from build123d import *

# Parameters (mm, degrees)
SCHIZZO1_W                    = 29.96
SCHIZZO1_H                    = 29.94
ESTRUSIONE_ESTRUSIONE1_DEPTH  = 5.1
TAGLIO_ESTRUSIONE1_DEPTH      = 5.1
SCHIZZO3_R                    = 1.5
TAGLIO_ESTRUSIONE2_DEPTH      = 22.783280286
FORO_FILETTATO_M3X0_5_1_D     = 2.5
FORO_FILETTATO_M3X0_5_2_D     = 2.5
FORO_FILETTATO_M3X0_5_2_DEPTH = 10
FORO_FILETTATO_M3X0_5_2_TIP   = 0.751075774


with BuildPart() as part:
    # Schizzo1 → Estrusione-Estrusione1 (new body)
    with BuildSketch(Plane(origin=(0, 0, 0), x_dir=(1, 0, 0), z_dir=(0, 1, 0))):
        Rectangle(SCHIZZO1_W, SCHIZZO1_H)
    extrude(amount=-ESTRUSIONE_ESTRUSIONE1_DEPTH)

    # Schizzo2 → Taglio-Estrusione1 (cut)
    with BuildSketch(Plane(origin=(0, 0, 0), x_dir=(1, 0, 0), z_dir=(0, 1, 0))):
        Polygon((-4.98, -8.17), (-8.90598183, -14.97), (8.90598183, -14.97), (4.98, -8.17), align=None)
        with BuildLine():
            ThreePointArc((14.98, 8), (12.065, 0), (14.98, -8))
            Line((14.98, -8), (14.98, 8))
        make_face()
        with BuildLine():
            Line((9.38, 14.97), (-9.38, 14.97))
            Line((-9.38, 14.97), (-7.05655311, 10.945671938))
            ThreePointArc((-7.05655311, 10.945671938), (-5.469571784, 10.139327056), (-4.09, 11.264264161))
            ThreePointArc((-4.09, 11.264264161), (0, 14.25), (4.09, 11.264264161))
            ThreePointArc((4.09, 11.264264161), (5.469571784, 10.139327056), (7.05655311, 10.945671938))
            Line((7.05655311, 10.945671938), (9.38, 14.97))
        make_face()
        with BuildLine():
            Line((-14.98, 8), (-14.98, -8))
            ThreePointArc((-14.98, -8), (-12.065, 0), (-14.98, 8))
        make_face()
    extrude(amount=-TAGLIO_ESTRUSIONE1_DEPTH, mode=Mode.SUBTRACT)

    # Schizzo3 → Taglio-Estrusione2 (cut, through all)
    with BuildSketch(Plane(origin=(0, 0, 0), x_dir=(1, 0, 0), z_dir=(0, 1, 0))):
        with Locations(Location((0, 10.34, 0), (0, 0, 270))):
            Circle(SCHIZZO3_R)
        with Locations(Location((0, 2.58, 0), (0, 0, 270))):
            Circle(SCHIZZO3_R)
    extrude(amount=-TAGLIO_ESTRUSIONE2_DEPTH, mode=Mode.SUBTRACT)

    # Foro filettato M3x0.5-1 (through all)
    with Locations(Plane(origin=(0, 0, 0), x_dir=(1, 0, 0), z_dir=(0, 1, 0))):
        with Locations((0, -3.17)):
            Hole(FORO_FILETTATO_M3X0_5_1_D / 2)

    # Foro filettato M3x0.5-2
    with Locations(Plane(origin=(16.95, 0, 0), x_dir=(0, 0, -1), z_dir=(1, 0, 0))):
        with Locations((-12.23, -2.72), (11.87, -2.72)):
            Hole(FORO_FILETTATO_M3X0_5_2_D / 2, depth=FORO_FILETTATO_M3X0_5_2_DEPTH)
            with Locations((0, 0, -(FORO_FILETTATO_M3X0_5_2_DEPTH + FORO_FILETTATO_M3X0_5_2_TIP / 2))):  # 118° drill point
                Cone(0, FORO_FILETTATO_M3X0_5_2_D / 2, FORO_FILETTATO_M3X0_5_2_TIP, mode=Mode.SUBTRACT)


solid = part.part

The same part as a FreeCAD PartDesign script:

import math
import FreeCAD as App
import Part
import Sketcher

V = App.Vector
Q = App.Units.Quantity


def add_polygon(sketch, points):
    """Adds a closed chain of lines whose ends are joined by coincident constraints."""
    first, n = sketch.GeometryCount, len(points)
    for a, b in zip(points, points[1:] + points[:1]):
        sketch.addGeometry(Part.LineSegment(App.Vector(*a, 0), App.Vector(*b, 0)), False)
    for i in range(n):
        sketch.addConstraint(Sketcher.Constraint("Coincident", first + i, 2, first + (i + 1) % n, 1))

doc = App.newDocument("Part")
body = doc.addObject("PartDesign::Body", "Body")

sketch1 = doc.addObject("Sketcher::SketchObject", "Sketch")
body.addObject(sketch1)
sketch1.AttachmentSupport = (doc.XZ_Plane, [""])
sketch1.MapMode = "FlatFace"
add_polygon(sketch1, [(-15, -15), (-15, 15), (15, 15), (15, -15)])
sketch1.addConstraint(Sketcher.Constraint("Vertical", 0))
sketch1.addConstraint(Sketcher.Constraint("Horizontal", 1))
sketch1.addConstraint(Sketcher.Constraint("Vertical", 2))
sketch1.addConstraint(Sketcher.Constraint("Horizontal", 3))
sketch1.addConstraint(Sketcher.Constraint("Symmetric", 0, 2, 2, 2, -1, 1))
sketch1.addConstraint(Sketcher.Constraint("DistanceX", 1, 1, 1, 2, 29.96))
sketch1.addConstraint(Sketcher.Constraint("DistanceY", 0, 1, 0, 2, 29.94))
pad1 = doc.addObject("PartDesign::Pad", "Pad")
body.addObject(pad1)
pad1.Profile = sketch1
pad1.Length = 5.1

sketch2 = doc.addObject("Sketcher::SketchObject", "Sketch001")
body.addObject(sketch2)
sketch2.AttachmentSupport = (doc.XZ_Plane, [""])
sketch2.MapMode = "FlatFace"
add_polygon(sketch2, [(-5, 8.2), (-8.9, 15), (8.9, 15), (5, 8.2)])
sketch2.addGeometry(Part.ArcOfCircle(Part.Circle(V(24.5, 0, 0), V(0, 0, 1), 12.4), math.radians(140), math.radians(220)), False)
sketch2.addGeometry(Part.LineSegment(V(15, 8, 0), V(15, -8, 0)), False)
sketch2.addGeometry(Part.LineSegment(V(9.4, -15, 0), V(-9.4, -15, 0)), False)
sketch2.addGeometry(Part.LineSegment(V(-9.4, -15, 0), V(-7.1, -10.9, 0)), False)
sketch2.addGeometry(Part.ArcOfCircle(Part.Circle(V(-5.6, -11.8, 0), V(0, 0, 1), 1.6), math.radians(18), math.radians(150)), False)
sketch2.addGeometry(Part.ArcOfCircle(Part.Circle(V(0, -10, 0), V(0, 0, 1), 4.3), math.radians(-162), math.radians(-18)), False)
sketch2.addGeometry(Part.ArcOfCircle(Part.Circle(V(5.6, -11.8, 0), V(0, 0, 1), 1.6), math.radians(30), math.radians(162)), False)
sketch2.addGeometry(Part.LineSegment(V(7.1, -10.9, 0), V(9.4, -15, 0)), False)
sketch2.addGeometry(Part.LineSegment(V(-15, -8, 0), V(-15, 8, 0)), False)
sketch2.addGeometry(Part.ArcOfCircle(Part.Circle(V(-24.5, 0, 0), V(0, 0, 1), 12.4), math.radians(-40), math.radians(40)), False)
sketch2.addConstraint(Sketcher.Constraint("Coincident", 4, 1, 5, 1))
sketch2.addConstraint(Sketcher.Constraint("Coincident", 5, 2, 4, 2))
sketch2.addConstraint(Sketcher.Constraint("Coincident", 6, 2, 7, 1))
sketch2.addConstraint(Sketcher.Constraint("Tangent", 7, 2, 8, 2))
sketch2.addConstraint(Sketcher.Constraint("Tangent", 8, 1, 9, 1))
sketch2.addConstraint(Sketcher.Constraint("Tangent", 9, 2, 10, 2))
sketch2.addConstraint(Sketcher.Constraint("Tangent", 10, 1, 11, 1))
sketch2.addConstraint(Sketcher.Constraint("Coincident", 11, 2, 6, 1))
sketch2.addConstraint(Sketcher.Constraint("Coincident", 12, 1, 13, 1))
sketch2.addConstraint(Sketcher.Constraint("Coincident", 13, 2, 12, 2))
sketch2.addConstraint(Sketcher.Constraint("Horizontal", 1))
sketch2.addConstraint(Sketcher.Constraint("Horizontal", 3))
sketch2.addConstraint(Sketcher.Constraint("Vertical", 5))
sketch2.addConstraint(Sketcher.Constraint("Horizontal", 6))
sketch2.addConstraint(Sketcher.Constraint("Vertical", 12))
sketch2.addConstraint(Sketcher.Constraint("Equal", 8, 10))
sketch2.addConstraint(Sketcher.Constraint("Equal", 4, 13))
sketch2.addConstraint(Sketcher.Constraint("Symmetric", 4, 3, 13, 3, -1, 1))
sketch2.addConstraint(Sketcher.Constraint("Symmetric", 8, 3, 10, 3, -2))
sketch2.addConstraint(Sketcher.Constraint("Symmetric", 5, 2, 12, 1, -2))
sketch2.addConstraint(Sketcher.Constraint("Parallel", 2, 7))
sketch2.addConstraint(Sketcher.Constraint("Parallel", 0, 11))
sketch2.addConstraint(Sketcher.Constraint("Horizontal", 7, 2, 10, 1))
sketch2.addConstraint(Sketcher.Constraint("DistanceY", 5, 2, 5, 1, 16.0))
sketch2.addConstraint(Sketcher.Constraint("Angle", 0, Q("120 deg")))
sketch2.addConstraint(Sketcher.Constraint("DistanceX", 2, 2, 4, 1, 10.0))
sketch2.addConstraint(Sketcher.Constraint("DistanceX", 13, 2, 3, 2, 10.0))
sketch2.addConstraint(Sketcher.Constraint("DistanceX", 3, 2, 3, 1, 9.96))
sketch2.addConstraint(Sketcher.Constraint("DistanceX", 6, 2, 6, 1, 18.76))
sketch2.addConstraint(Sketcher.Constraint("Radius", 4, 12.435202))
sketch2.addConstraint(Sketcher.Constraint("DistanceY", 2, 2, 1, 2, 6.8))
sketch2.addConstraint(Sketcher.Constraint("DistanceY", -1, 1, 0, 2, 14.97))
sketch2.addConstraint(Sketcher.Constraint("DistanceY", 6, 2, -1, 1, 14.97))
sketch2.addConstraint(Sketcher.Constraint("DistanceX", 8, 1, -1, 1, 4.09))
sketch2.addConstraint(Sketcher.Constraint("Radius", 8, 1.631344))
sketch2.addConstraint(Sketcher.Constraint("Radius", 9, 4.294204))
pocket1 = doc.addObject("PartDesign::Pocket", "Pocket")
body.addObject(pocket1)
pocket1.Profile = sketch2
pocket1.Length = 5.1
pocket1.Reversed = True

sketch3 = doc.addObject("Sketcher::SketchObject", "Sketch002")
body.addObject(sketch3)
sketch3.AttachmentSupport = (doc.XZ_Plane, [""])
sketch3.MapMode = "FlatFace"
sketch3.addGeometry(Part.Circle(V(0, -10.3, 0), V(0, 0, 1), 1.5), False)
sketch3.addGeometry(Part.Circle(V(0, -2.6, 0), V(0, 0, 1), 1.5), False)
sketch3.addConstraint(Sketcher.Constraint("Equal", 0, 1))
sketch3.addConstraint(Sketcher.Constraint("PointOnObject", 0, 3, -2))
sketch3.addConstraint(Sketcher.Constraint("PointOnObject", 1, 3, -2))
sketch3.addConstraint(Sketcher.Constraint("Diameter", 0, 3.0))
sketch3.addConstraint(Sketcher.Constraint("DistanceY", 0, 3, -1, 1, 10.34))
sketch3.addConstraint(Sketcher.Constraint("DistanceY", 1, 3, -1, 1, 2.58))
pocket2 = doc.addObject("PartDesign::Pocket", "Pocket001")
body.addObject(pocket2)
pocket2.Profile = sketch3
pocket2.Type = "ThroughAll"
pocket2.Reversed = True

sketch4 = doc.addObject("Sketcher::SketchObject", "Sketch003")
body.addObject(sketch4)
sketch4.AttachmentSupport = (doc.XZ_Plane, [""])
sketch4.MapMode = "FlatFace"
sketch4.addGeometry(Part.Circle(V(0, 3.2, 0), V(0, 0, 1), 1.2), False)
sketch4.addConstraint(Sketcher.Constraint("PointOnObject", 0, 3, -2))
sketch4.addConstraint(Sketcher.Constraint("Diameter", 0, 2.5))
sketch4.addConstraint(Sketcher.Constraint("DistanceY", -1, 1, 0, 3, 3.17))
doc.recompute()
hole = doc.addObject("PartDesign::Hole", "Hole")
body.addObject(hole)
hole.Profile = sketch4
hole.ThreadType = "None"
hole.Diameter = 2.5
hole.DepthType = "ThroughAll"
hole.Reversed = True

sketch5 = doc.addObject("Sketcher::SketchObject", "Sketch004")
body.addObject(sketch5)
sketch5.AttachmentSupport = (doc.YZ_Plane, [""])
sketch5.MapMode = "FlatFace"
sketch5.AttachmentOffset = App.Placement(V(0, 0, 16.95), App.Rotation())
sketch5.addGeometry(Part.Circle(V(-2.7, 12.2, 0), V(0, 0, 1), 1.2), False)
sketch5.addGeometry(Part.Circle(V(-2.7, -11.9, 0), V(0, 0, 1), 1.2), False)
sketch5.addConstraint(Sketcher.Constraint("Equal", 0, 1))
sketch5.addConstraint(Sketcher.Constraint("Vertical", 0, 3, 1, 3))
sketch5.addConstraint(Sketcher.Constraint("Diameter", 0, 2.5))
sketch5.addConstraint(Sketcher.Constraint("DistanceY", 1, 3, 0, 3, 24.1))
sketch5.addConstraint(Sketcher.Constraint("DistanceX", 0, 3, -1, 1, 2.72))
sketch5.addConstraint(Sketcher.Constraint("DistanceY", -1, 1, 0, 3, 12.23))
doc.recompute()
hole2 = doc.addObject("PartDesign::Hole", "Hole001")
body.addObject(hole2)
hole2.Profile = sketch5
hole2.ThreadType = "None"
hole2.Diameter = 2.5
hole2.DepthType = "Dimension"
hole2.Depth = 10
hole2.DrillPoint = "Angled"
hole2.DrillPointAngle = 118

doc.recompute()
